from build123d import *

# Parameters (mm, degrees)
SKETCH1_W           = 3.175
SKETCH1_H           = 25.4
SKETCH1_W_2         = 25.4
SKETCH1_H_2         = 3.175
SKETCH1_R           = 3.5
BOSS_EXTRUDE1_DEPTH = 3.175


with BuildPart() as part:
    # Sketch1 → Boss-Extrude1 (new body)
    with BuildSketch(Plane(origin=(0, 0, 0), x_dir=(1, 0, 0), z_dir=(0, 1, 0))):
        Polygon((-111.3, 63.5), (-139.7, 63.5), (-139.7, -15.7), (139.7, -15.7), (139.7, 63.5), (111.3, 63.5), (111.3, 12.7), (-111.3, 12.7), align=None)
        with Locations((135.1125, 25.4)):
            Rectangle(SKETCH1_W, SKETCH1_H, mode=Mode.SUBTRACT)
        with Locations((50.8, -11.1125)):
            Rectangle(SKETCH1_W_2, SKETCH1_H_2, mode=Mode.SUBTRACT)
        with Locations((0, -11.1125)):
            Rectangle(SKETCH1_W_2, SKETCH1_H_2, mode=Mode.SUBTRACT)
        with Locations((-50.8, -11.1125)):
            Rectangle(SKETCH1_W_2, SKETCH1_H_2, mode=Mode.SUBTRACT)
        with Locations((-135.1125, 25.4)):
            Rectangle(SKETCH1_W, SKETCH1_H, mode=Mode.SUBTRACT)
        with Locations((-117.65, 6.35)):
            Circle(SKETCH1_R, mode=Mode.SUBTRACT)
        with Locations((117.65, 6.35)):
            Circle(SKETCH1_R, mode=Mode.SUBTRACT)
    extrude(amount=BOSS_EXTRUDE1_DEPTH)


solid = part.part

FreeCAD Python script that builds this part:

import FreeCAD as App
import Part
import Sketcher

V = App.Vector


def add_polygon(sketch, points):
    """Adds a closed chain of lines whose ends are joined by coincident constraints."""
    first, n = sketch.GeometryCount, len(points)
    for a, b in zip(points, points[1:] + points[:1]):
        sketch.addGeometry(Part.LineSegment(App.Vector(*a, 0), App.Vector(*b, 0)), False)
    for i in range(n):
        sketch.addConstraint(Sketcher.Constraint("Coincident", first + i, 2, first + (i + 1) % n, 1))

doc = App.newDocument("Part")
params = doc.addObject("Spreadsheet::Sheet", "Params")
for row, (alias, value) in enumerate([
    ("sketch1_diameter", "7 mm"),
    ("sketch1_width", "28.4 mm"),
    ("sketch1_width2", "279.4 mm"),
    ("sketch1_width3", "25.4 mm"),
    ("sketch1_height", "79.2 mm"),
    ("pad1_length", "3.175 mm"),
], start=1):
    params.set(f"A{row}", alias)
    params.set(f"B{row}", "=" + value)
    params.setAlias(f"B{row}", alias)

body = doc.addObject("PartDesign::Body", "Body")

# Sketch on XZ plane
sketch1 = body.newObject("Sketcher::SketchObject", "Sketch")
sketch1.AttachmentSupport = (doc.getObject("XZ_Plane"), [""])
sketch1.MapMode = "FlatFace"
add_polygon(sketch1, [(-111.3, -63.5), (-139.7, -63.5), (-139.7, 15.7), (139.7, 15.7), (139.7, -63.5), (111.3, -63.5), (111.3, -12.7), (-111.3, -12.7)])  # lines 0-7
add_polygon(sketch1, [(-38.1, 12.7), (-63.5, 12.7), (-63.5, 9.525), (-38.1, 9.525)])  # lines 8-11
sketch1.addGeometry(Part.Circle(V(-117.65, -6.35, 0), V(0, 0, 1), 3.5), False)  # 12
add_polygon(sketch1, [(12.7, 12.7), (-12.7, 12.7), (-12.7, 9.525), (12.7, 9.525)])  # lines 13-16
add_polygon(sketch1, [(63.5, 12.7), (38.1, 12.7), (38.1, 9.525), (63.5, 9.525)])  # lines 17-20
sketch1.addGeometry(Part.Circle(V(117.65, -6.35, 0), V(0, 0, 1), 3.5), False)  # 21
add_polygon(sketch1, [(-133.525, -12.7), (-136.7, -12.7), (-136.7, -38.1), (-133.525, -38.1)])  # lines 22-25
add_polygon(sketch1, [(136.7, -12.7), (133.525, -12.7), (133.525, -38.1), (136.7, -38.1)])  # lines 26-29
sketch1.addConstraint(Sketcher.Constraint("Horizontal", 0))
sketch1.addConstraint(Sketcher.Constraint("Vertical", 1))
sketch1.addConstraint(Sketcher.Constraint("Horizontal", 2))
sketch1.addConstraint(Sketcher.Constraint("Vertical", 3))
sketch1.addConstraint(Sketcher.Constraint("Horizontal", 4))
sketch1.addConstraint(Sketcher.Constraint("Vertical", 5))
sketch1.addConstraint(Sketcher.Constraint("Horizontal", 6))
sketch1.addConstraint(Sketcher.Constraint("Vertical", 7))
sketch1.addConstraint(Sketcher.Constraint("Horizontal", 8))
sketch1.addConstraint(Sketcher.Constraint("Vertical", 9))
sketch1.addConstraint(Sketcher.Constraint("Horizontal", 10))
sketch1.addConstraint(Sketcher.Constraint("Vertical", 11))
sketch1.addConstraint(Sketcher.Constraint("Horizontal", 13))
sketch1.addConstraint(Sketcher.Constraint("Vertical", 14))
sketch1.addConstraint(Sketcher.Constraint("Horizontal", 15))
sketch1.addConstraint(Sketcher.Constraint("Vertical", 16))
sketch1.addConstraint(Sketcher.Constraint("Horizontal", 17))
sketch1.addConstraint(Sketcher.Constraint("Vertical", 18))
sketch1.addConstraint(Sketcher.Constraint("Horizontal", 19))
sketch1.addConstraint(Sketcher.Constraint("Vertical", 20))
sketch1.addConstraint(Sketcher.Constraint("Horizontal", 22))
sketch1.addConstraint(Sketcher.Constraint("Vertical", 23))
sketch1.addConstraint(Sketcher.Constraint("Horizontal", 24))
sketch1.addConstraint(Sketcher.Constraint("Vertical", 25))
sketch1.addConstraint(Sketcher.Constraint("Horizontal", 26))
sketch1.addConstraint(Sketcher.Constraint("Vertical", 27))
sketch1.addConstraint(Sketcher.Constraint("Horizontal", 28))
sketch1.addConstraint(Sketcher.Constraint("Vertical", 29))
sketch1.addConstraint(Sketcher.Constraint("Equal", 12, 21))
sketch1.addConstraint(Sketcher.Constraint("Symmetric", 12, 3, 21, 3, -2))
sketch1.addConstraint(Sketcher.Constraint("Symmetric", 0, 2, 3, 2, -2))
sketch1.addConstraint(Sketcher.Constraint("Symmetric", 11, 2, 17, 2, -2))
sketch1.addConstraint(Sketcher.Constraint("Symmetric", 9, 2, 19, 2, -2))
sketch1.addConstraint(Sketcher.Constraint("Symmetric", 25, 2, 26, 2, -2))
sketch1.addConstraint(Sketcher.Constraint("Symmetric", 23, 2, 28, 2, -2))
sketch1.addConstraint(Sketcher.Constraint("Horizontal", 11, 2, 13, 2))
sketch1.addConstraint(Sketcher.Constraint("Horizontal", 10, 2, 14, 2))
sketch1.addConstraint(Sketcher.Constraint("Horizontal", 6, 2, 22, 2))
sketch1.addConstraint(Sketcher.Constraint("Equal", 0, 4))
sketch1.addConstraint(Sketcher.Constraint("Equal", 10, 13))
sketch1.addConstraint(Sketcher.Constraint("Equal", 28, 9))
sketch1.addConstraint(Sketcher.Constraint("Equal", 19, 23))
sketch1.addConstraint(Sketcher.Constraint("Diameter", 12, 7.0))
sketch1.addConstraint(Sketcher.Constraint("DistanceX", 0, 2, 0, 1, 28.4))
sketch1.addConstraint(Sketcher.Constraint("DistanceX", 2, 1, 2, 2, 279.4))
sketch1.addConstraint(Sketcher.Constraint("DistanceX", 8, 2, 8, 1, 25.4))
sketch1.addConstraint(Sketcher.Constraint("DistanceY", 1, 1, 1, 2, 79.2))
sketch1.addConstraint(Sketcher.Constraint("DistanceY", 5, 1, 5, 2, 50.8))
sketch1.addConstraint(Sketcher.Constraint("DistanceY", 8, 2, 1, 2, 3.0))
sketch1.addConstraint(Sketcher.Constraint("DistanceX", 1, 2, 22, 2, 3.0))
sketch1.addConstraint(Sketcher.Constraint("DistanceY", 0, 2, -1, 1, 63.5))
sketch1.addConstraint(Sketcher.Constraint("DistanceX", 8, 2, -1, 1, 63.5))
sketch1.addConstraint(Sketcher.Constraint("DistanceX", 13, 2, -1, 1, 12.7))
sketch1.addConstraint(Sketcher.Constraint("DistanceX", 12, 3, 21, 3, 235.3))
sketch1.addConstraint(Sketcher.Constraint("DistanceX", 22, 2, 22, 1, 3.175))
sketch1.addConstraint(Sketcher.Constraint("DistanceY", 12, 3, -1, 1, 6.35))
sketch1.setExpression("Constraints[70]", "Params.sketch1_diameter")
sketch1.setExpression("Constraints[71]", "Params.sketch1_width")
sketch1.setExpression("Constraints[72]", "Params.sketch1_width2")
sketch1.setExpression("Constraints[73]", "Params.sketch1_width3")
sketch1.setExpression("Constraints[74]", "Params.sketch1_height")
pad1 = body.newObject("PartDesign::Pad", "Pad")
pad1.Profile = sketch1
pad1.setExpression("Length", "Params.pad1_length")
pad1.Reversed = True

doc.recompute()
